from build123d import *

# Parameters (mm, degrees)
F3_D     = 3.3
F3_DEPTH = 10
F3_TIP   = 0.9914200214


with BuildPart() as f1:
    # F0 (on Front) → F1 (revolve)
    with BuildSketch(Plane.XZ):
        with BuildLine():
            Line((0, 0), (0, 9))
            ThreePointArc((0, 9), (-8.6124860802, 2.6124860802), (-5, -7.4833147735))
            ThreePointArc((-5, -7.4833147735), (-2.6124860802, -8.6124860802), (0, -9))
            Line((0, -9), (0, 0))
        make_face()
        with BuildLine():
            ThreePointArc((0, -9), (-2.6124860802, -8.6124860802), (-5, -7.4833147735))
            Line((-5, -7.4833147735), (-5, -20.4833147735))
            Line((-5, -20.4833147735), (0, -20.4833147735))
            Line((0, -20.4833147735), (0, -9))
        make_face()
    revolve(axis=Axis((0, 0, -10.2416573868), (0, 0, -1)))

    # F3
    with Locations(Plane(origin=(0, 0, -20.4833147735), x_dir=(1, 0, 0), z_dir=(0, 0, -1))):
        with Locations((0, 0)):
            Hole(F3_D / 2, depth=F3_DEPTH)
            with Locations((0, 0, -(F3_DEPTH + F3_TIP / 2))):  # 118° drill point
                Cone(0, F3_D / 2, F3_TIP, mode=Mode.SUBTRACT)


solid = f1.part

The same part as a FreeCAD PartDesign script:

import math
import FreeCAD as App
import Part
import Sketcher
from FreeCAD import Vector
Q = App.Units.Quantity

doc = App.newDocument("Part")
body = doc.addObject("PartDesign::Body", "Body")

# Sketch on XZ plane
sketch1 = body.newObject("Sketcher::SketchObject", "Sketch")
sketch1.AttachmentSupport = (doc.getObject("XZ_Plane"), [""])
sketch1.MapMode = "FlatFace"
sketch1.addGeometry(Part.ArcOfCircle(Part.Circle(Vector(0, 0, 0), Vector(0, 0, 1), 9), math.radians(90), math.radians(236)), False)
sketch1.addGeometry(Part.LineSegment(Vector(-5, -7, 0), Vector(-5, -20, 0)), False)
sketch1.addGeometry(Part.LineSegment(Vector(-5, -20, 0), Vector(0, -20, 0)), False)
sketch1.addGeometry(Part.LineSegment(Vector(0, -20, 0), Vector(0, 9, 0)), False)
sketch1.addConstraint(Sketcher.Constraint("Coincident", 0, 2, 1, 1))
sketch1.addConstraint(Sketcher.Constraint("Coincident", 1, 2, 2, 1))
sketch1.addConstraint(Sketcher.Constraint("Coincident", 2, 2, 3, 1))
sketch1.addConstraint(Sketcher.Constraint("Coincident", 3, 2, 0, 1))
sketch1.addConstraint(Sketcher.Constraint("Vertical", 1))
sketch1.addConstraint(Sketcher.Constraint("Horizontal", 2))
sketch1.addConstraint(Sketcher.Constraint("Vertical", 3))
sketch1.addConstraint(Sketcher.Constraint("Coincident", 0, 3, -1, 1))
sketch1.addConstraint(Sketcher.Constraint("PointOnObject", 2, 2, -2))
sketch1.addConstraint(Sketcher.Constraint("Radius", 0, Q("9 mm")))
sketch1.addConstraint(Sketcher.Constraint("DistanceX", 2, 1, 2, 2, Q("5 mm")))
sketch1.addConstraint(Sketcher.Constraint("DistanceY", 1, 2, 1, 1, Q("13 mm")))
revolution = body.newObject("PartDesign::Revolution", "Revolution")
revolution.Profile = sketch1
revolution.ReferenceAxis = (sketch1, ["V_Axis"])
revolution.Angle = 360

# Sketch on XY plane
sketch2 = body.newObject("Sketcher::SketchObject", "Sketch001")
sketch2.AttachmentSupport = (doc.getObject("XY_Plane"), [""])
sketch2.MapMode = "FlatFace"
sketch2.AttachmentOffset = App.Placement(Vector(0, 0, -20.483315), App.Rotation())
sketch2.addGeometry(Part.Circle(Vector(0, 0, 0), Vector(0, 0, 1), 1.6), False)
sketch2.addConstraint(Sketcher.Constraint("Coincident", 0, 3, -1, 1))
sketch2.addConstraint(Sketcher.Constraint("Diameter", 0, Q("3.3 mm")))
doc.recompute()
hole = body.newObject("PartDesign::Hole", "Hole")
hole.Profile = sketch2
hole.ThreadType = "None"
hole.Diameter = 3.3
hole.DepthType = "Dimension"
hole.Depth = 10
hole.DrillPoint = "Angled"
hole.DrillPointAngle = 118
hole.Reversed = True

doc.recompute()
